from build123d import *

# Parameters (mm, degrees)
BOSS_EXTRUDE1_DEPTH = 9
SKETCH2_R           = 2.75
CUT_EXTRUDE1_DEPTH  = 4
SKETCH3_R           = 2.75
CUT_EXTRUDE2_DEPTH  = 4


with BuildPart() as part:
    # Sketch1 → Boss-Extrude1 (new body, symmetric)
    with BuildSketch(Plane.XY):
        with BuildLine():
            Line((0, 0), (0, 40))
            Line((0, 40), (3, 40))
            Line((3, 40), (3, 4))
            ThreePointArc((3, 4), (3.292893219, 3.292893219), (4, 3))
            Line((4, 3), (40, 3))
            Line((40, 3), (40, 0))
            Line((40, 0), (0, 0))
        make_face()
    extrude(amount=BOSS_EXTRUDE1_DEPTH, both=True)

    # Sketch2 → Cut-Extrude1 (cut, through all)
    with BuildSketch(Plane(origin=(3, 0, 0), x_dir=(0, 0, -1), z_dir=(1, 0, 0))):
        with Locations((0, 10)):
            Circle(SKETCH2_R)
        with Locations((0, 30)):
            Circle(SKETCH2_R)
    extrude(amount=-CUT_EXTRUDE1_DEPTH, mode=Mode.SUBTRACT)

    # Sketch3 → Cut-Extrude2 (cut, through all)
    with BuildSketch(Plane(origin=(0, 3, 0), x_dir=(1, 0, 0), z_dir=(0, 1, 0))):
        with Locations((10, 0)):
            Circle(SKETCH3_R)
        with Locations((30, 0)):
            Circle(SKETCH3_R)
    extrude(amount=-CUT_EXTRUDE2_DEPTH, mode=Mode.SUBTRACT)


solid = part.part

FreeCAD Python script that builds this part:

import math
import FreeCAD as App
import Part
import Sketcher

V = App.Vector
Q = App.Units.Quantity

doc = App.newDocument("Part")
body = doc.addObject("PartDesign::Body", "Body")

# Sketch on XY plane
sketch1 = doc.addObject("Sketcher::SketchObject", "Sketch")
body.addObject(sketch1)
sketch1.AttachmentSupport = (doc.XY_Plane, [""])
sketch1.MapMode = "FlatFace"
sketch1.addGeometry([
    Part.LineSegment(V(0, 40, 0), V(0, 0, 0)),  # 0
    Part.LineSegment(V(0, 0, 0), V(40, 0, 0)),  # 1
    Part.LineSegment(V(40, 0, 0), V(40, 3, 0)),  # 2
    Part.LineSegment(V(40, 3, 0), V(4, 3, 0)),  # 3
    Part.ArcOfCircle(Part.Circle(V(4, 4, 0), V(0, 0, 1), 1), math.radians(-180), math.radians(-90)),  # 4
    Part.LineSegment(V(3, 4, 0), V(3, 40, 0)),  # 5
    Part.LineSegment(V(3, 40, 0), V(0, 40, 0)),  # 6
], False)
sketch1.addConstraint([
    Sketcher.Constraint("Coincident", 0, 2, 1, 1),
    Sketcher.Constraint("Coincident", 1, 2, 2, 1),
    Sketcher.Constraint("Coincident", 2, 2, 3, 1),
    Sketcher.Constraint("Tangent", 3, 2, 4, 2),
    Sketcher.Constraint("Tangent", 4, 1, 5, 1),
    Sketcher.Constraint("Coincident", 5, 2, 6, 1),
    Sketcher.Constraint("Coincident", 6, 2, 0, 1),
    Sketcher.Constraint("Vertical", 0),
    Sketcher.Constraint("Horizontal", 1),
    Sketcher.Constraint("Vertical", 2),
    Sketcher.Constraint("Horizontal", 3),
    Sketcher.Constraint("Vertical", 5),
    Sketcher.Constraint("Horizontal", 6),
    Sketcher.Constraint("Coincident", 0, 2, -1, 1),
    Sketcher.Constraint("Equal", 1, 0),
    Sketcher.Constraint("Equal", 6, 2),
    Sketcher.Constraint("Radius", 4, Q("1 mm")),
    Sketcher.Constraint("DistanceX", 1, 1, 1, 2, Q("40 mm")),
    Sketcher.Constraint("DistanceX", 3, 2, 3, 1, Q("36 mm")),
])
pad1 = doc.addObject("PartDesign::Pad", "Pad")
body.addObject(pad1)
pad1.Profile = sketch1
pad1.Length = 18
pad1.Midplane = True

# Sketch on YZ plane
sketch2 = doc.addObject("Sketcher::SketchObject", "Sketch001")
body.addObject(sketch2)
sketch2.AttachmentSupport = (doc.YZ_Plane, [""])
sketch2.MapMode = "FlatFace"
sketch2.AttachmentOffset = App.Placement(V(0, 0, 3), App.Rotation())
sketch2.addGeometry([
    Part.Circle(V(10, 0, 0), V(0, 0, 1), 2.75),
    Part.Circle(V(30, 0, 0), V(0, 0, 1), 2.75),
], False)
sketch2.addConstraint([
    Sketcher.Constraint("Equal", 0, 1),
    Sketcher.Constraint("PointOnObject", 0, 3, -1),
    Sketcher.Constraint("PointOnObject", 1, 3, -1),
    Sketcher.Constraint("Diameter", 0, Q("5.5 mm")),
    Sketcher.Constraint("DistanceX", -1, 1, 0, 3, Q("10 mm")),
    Sketcher.Constraint("DistanceX", -1, 1, 1, 3, Q("30 mm")),
])
pocket1 = doc.addObject("PartDesign::Pocket", "Pocket")
body.addObject(pocket1)
pocket1.Profile = sketch2
pocket1.Type = "ThroughAll"

# Sketch on XZ plane
sketch3 = doc.addObject("Sketcher::SketchObject", "Sketch002")
body.addObject(sketch3)
sketch3.AttachmentSupport = (doc.XZ_Plane, [""])
sketch3.MapMode = "FlatFace"
sketch3.AttachmentOffset = App.Placement(V(0, 0, -3), App.Rotation())
sketch3.addGeometry([
    Part.Circle(V(10, 0, 0), V(0, 0, 1), 2.75),
    Part.Circle(V(30, 0, 0), V(0, 0, 1), 2.75),
], False)
sketch3.addConstraint([
    Sketcher.Constraint("Equal", 0, 1),
    Sketcher.Constraint("PointOnObject", 0, 3, -1),
    Sketcher.Constraint("PointOnObject", 1, 3, -1),
    Sketcher.Constraint("Diameter", 0, Q("5.5 mm")),
    Sketcher.Constraint("DistanceX", -1, 1, 0, 3, Q("10 mm")),
    Sketcher.Constraint("DistanceX", -1, 1, 1, 3, Q("30 mm")),
])
pocket2 = doc.addObject("PartDesign::Pocket", "Pocket001")
body.addObject(pocket2)
pocket2.Profile = sketch3
pocket2.Type = "ThroughAll"
pocket2.Reversed = True

doc.recompute()
